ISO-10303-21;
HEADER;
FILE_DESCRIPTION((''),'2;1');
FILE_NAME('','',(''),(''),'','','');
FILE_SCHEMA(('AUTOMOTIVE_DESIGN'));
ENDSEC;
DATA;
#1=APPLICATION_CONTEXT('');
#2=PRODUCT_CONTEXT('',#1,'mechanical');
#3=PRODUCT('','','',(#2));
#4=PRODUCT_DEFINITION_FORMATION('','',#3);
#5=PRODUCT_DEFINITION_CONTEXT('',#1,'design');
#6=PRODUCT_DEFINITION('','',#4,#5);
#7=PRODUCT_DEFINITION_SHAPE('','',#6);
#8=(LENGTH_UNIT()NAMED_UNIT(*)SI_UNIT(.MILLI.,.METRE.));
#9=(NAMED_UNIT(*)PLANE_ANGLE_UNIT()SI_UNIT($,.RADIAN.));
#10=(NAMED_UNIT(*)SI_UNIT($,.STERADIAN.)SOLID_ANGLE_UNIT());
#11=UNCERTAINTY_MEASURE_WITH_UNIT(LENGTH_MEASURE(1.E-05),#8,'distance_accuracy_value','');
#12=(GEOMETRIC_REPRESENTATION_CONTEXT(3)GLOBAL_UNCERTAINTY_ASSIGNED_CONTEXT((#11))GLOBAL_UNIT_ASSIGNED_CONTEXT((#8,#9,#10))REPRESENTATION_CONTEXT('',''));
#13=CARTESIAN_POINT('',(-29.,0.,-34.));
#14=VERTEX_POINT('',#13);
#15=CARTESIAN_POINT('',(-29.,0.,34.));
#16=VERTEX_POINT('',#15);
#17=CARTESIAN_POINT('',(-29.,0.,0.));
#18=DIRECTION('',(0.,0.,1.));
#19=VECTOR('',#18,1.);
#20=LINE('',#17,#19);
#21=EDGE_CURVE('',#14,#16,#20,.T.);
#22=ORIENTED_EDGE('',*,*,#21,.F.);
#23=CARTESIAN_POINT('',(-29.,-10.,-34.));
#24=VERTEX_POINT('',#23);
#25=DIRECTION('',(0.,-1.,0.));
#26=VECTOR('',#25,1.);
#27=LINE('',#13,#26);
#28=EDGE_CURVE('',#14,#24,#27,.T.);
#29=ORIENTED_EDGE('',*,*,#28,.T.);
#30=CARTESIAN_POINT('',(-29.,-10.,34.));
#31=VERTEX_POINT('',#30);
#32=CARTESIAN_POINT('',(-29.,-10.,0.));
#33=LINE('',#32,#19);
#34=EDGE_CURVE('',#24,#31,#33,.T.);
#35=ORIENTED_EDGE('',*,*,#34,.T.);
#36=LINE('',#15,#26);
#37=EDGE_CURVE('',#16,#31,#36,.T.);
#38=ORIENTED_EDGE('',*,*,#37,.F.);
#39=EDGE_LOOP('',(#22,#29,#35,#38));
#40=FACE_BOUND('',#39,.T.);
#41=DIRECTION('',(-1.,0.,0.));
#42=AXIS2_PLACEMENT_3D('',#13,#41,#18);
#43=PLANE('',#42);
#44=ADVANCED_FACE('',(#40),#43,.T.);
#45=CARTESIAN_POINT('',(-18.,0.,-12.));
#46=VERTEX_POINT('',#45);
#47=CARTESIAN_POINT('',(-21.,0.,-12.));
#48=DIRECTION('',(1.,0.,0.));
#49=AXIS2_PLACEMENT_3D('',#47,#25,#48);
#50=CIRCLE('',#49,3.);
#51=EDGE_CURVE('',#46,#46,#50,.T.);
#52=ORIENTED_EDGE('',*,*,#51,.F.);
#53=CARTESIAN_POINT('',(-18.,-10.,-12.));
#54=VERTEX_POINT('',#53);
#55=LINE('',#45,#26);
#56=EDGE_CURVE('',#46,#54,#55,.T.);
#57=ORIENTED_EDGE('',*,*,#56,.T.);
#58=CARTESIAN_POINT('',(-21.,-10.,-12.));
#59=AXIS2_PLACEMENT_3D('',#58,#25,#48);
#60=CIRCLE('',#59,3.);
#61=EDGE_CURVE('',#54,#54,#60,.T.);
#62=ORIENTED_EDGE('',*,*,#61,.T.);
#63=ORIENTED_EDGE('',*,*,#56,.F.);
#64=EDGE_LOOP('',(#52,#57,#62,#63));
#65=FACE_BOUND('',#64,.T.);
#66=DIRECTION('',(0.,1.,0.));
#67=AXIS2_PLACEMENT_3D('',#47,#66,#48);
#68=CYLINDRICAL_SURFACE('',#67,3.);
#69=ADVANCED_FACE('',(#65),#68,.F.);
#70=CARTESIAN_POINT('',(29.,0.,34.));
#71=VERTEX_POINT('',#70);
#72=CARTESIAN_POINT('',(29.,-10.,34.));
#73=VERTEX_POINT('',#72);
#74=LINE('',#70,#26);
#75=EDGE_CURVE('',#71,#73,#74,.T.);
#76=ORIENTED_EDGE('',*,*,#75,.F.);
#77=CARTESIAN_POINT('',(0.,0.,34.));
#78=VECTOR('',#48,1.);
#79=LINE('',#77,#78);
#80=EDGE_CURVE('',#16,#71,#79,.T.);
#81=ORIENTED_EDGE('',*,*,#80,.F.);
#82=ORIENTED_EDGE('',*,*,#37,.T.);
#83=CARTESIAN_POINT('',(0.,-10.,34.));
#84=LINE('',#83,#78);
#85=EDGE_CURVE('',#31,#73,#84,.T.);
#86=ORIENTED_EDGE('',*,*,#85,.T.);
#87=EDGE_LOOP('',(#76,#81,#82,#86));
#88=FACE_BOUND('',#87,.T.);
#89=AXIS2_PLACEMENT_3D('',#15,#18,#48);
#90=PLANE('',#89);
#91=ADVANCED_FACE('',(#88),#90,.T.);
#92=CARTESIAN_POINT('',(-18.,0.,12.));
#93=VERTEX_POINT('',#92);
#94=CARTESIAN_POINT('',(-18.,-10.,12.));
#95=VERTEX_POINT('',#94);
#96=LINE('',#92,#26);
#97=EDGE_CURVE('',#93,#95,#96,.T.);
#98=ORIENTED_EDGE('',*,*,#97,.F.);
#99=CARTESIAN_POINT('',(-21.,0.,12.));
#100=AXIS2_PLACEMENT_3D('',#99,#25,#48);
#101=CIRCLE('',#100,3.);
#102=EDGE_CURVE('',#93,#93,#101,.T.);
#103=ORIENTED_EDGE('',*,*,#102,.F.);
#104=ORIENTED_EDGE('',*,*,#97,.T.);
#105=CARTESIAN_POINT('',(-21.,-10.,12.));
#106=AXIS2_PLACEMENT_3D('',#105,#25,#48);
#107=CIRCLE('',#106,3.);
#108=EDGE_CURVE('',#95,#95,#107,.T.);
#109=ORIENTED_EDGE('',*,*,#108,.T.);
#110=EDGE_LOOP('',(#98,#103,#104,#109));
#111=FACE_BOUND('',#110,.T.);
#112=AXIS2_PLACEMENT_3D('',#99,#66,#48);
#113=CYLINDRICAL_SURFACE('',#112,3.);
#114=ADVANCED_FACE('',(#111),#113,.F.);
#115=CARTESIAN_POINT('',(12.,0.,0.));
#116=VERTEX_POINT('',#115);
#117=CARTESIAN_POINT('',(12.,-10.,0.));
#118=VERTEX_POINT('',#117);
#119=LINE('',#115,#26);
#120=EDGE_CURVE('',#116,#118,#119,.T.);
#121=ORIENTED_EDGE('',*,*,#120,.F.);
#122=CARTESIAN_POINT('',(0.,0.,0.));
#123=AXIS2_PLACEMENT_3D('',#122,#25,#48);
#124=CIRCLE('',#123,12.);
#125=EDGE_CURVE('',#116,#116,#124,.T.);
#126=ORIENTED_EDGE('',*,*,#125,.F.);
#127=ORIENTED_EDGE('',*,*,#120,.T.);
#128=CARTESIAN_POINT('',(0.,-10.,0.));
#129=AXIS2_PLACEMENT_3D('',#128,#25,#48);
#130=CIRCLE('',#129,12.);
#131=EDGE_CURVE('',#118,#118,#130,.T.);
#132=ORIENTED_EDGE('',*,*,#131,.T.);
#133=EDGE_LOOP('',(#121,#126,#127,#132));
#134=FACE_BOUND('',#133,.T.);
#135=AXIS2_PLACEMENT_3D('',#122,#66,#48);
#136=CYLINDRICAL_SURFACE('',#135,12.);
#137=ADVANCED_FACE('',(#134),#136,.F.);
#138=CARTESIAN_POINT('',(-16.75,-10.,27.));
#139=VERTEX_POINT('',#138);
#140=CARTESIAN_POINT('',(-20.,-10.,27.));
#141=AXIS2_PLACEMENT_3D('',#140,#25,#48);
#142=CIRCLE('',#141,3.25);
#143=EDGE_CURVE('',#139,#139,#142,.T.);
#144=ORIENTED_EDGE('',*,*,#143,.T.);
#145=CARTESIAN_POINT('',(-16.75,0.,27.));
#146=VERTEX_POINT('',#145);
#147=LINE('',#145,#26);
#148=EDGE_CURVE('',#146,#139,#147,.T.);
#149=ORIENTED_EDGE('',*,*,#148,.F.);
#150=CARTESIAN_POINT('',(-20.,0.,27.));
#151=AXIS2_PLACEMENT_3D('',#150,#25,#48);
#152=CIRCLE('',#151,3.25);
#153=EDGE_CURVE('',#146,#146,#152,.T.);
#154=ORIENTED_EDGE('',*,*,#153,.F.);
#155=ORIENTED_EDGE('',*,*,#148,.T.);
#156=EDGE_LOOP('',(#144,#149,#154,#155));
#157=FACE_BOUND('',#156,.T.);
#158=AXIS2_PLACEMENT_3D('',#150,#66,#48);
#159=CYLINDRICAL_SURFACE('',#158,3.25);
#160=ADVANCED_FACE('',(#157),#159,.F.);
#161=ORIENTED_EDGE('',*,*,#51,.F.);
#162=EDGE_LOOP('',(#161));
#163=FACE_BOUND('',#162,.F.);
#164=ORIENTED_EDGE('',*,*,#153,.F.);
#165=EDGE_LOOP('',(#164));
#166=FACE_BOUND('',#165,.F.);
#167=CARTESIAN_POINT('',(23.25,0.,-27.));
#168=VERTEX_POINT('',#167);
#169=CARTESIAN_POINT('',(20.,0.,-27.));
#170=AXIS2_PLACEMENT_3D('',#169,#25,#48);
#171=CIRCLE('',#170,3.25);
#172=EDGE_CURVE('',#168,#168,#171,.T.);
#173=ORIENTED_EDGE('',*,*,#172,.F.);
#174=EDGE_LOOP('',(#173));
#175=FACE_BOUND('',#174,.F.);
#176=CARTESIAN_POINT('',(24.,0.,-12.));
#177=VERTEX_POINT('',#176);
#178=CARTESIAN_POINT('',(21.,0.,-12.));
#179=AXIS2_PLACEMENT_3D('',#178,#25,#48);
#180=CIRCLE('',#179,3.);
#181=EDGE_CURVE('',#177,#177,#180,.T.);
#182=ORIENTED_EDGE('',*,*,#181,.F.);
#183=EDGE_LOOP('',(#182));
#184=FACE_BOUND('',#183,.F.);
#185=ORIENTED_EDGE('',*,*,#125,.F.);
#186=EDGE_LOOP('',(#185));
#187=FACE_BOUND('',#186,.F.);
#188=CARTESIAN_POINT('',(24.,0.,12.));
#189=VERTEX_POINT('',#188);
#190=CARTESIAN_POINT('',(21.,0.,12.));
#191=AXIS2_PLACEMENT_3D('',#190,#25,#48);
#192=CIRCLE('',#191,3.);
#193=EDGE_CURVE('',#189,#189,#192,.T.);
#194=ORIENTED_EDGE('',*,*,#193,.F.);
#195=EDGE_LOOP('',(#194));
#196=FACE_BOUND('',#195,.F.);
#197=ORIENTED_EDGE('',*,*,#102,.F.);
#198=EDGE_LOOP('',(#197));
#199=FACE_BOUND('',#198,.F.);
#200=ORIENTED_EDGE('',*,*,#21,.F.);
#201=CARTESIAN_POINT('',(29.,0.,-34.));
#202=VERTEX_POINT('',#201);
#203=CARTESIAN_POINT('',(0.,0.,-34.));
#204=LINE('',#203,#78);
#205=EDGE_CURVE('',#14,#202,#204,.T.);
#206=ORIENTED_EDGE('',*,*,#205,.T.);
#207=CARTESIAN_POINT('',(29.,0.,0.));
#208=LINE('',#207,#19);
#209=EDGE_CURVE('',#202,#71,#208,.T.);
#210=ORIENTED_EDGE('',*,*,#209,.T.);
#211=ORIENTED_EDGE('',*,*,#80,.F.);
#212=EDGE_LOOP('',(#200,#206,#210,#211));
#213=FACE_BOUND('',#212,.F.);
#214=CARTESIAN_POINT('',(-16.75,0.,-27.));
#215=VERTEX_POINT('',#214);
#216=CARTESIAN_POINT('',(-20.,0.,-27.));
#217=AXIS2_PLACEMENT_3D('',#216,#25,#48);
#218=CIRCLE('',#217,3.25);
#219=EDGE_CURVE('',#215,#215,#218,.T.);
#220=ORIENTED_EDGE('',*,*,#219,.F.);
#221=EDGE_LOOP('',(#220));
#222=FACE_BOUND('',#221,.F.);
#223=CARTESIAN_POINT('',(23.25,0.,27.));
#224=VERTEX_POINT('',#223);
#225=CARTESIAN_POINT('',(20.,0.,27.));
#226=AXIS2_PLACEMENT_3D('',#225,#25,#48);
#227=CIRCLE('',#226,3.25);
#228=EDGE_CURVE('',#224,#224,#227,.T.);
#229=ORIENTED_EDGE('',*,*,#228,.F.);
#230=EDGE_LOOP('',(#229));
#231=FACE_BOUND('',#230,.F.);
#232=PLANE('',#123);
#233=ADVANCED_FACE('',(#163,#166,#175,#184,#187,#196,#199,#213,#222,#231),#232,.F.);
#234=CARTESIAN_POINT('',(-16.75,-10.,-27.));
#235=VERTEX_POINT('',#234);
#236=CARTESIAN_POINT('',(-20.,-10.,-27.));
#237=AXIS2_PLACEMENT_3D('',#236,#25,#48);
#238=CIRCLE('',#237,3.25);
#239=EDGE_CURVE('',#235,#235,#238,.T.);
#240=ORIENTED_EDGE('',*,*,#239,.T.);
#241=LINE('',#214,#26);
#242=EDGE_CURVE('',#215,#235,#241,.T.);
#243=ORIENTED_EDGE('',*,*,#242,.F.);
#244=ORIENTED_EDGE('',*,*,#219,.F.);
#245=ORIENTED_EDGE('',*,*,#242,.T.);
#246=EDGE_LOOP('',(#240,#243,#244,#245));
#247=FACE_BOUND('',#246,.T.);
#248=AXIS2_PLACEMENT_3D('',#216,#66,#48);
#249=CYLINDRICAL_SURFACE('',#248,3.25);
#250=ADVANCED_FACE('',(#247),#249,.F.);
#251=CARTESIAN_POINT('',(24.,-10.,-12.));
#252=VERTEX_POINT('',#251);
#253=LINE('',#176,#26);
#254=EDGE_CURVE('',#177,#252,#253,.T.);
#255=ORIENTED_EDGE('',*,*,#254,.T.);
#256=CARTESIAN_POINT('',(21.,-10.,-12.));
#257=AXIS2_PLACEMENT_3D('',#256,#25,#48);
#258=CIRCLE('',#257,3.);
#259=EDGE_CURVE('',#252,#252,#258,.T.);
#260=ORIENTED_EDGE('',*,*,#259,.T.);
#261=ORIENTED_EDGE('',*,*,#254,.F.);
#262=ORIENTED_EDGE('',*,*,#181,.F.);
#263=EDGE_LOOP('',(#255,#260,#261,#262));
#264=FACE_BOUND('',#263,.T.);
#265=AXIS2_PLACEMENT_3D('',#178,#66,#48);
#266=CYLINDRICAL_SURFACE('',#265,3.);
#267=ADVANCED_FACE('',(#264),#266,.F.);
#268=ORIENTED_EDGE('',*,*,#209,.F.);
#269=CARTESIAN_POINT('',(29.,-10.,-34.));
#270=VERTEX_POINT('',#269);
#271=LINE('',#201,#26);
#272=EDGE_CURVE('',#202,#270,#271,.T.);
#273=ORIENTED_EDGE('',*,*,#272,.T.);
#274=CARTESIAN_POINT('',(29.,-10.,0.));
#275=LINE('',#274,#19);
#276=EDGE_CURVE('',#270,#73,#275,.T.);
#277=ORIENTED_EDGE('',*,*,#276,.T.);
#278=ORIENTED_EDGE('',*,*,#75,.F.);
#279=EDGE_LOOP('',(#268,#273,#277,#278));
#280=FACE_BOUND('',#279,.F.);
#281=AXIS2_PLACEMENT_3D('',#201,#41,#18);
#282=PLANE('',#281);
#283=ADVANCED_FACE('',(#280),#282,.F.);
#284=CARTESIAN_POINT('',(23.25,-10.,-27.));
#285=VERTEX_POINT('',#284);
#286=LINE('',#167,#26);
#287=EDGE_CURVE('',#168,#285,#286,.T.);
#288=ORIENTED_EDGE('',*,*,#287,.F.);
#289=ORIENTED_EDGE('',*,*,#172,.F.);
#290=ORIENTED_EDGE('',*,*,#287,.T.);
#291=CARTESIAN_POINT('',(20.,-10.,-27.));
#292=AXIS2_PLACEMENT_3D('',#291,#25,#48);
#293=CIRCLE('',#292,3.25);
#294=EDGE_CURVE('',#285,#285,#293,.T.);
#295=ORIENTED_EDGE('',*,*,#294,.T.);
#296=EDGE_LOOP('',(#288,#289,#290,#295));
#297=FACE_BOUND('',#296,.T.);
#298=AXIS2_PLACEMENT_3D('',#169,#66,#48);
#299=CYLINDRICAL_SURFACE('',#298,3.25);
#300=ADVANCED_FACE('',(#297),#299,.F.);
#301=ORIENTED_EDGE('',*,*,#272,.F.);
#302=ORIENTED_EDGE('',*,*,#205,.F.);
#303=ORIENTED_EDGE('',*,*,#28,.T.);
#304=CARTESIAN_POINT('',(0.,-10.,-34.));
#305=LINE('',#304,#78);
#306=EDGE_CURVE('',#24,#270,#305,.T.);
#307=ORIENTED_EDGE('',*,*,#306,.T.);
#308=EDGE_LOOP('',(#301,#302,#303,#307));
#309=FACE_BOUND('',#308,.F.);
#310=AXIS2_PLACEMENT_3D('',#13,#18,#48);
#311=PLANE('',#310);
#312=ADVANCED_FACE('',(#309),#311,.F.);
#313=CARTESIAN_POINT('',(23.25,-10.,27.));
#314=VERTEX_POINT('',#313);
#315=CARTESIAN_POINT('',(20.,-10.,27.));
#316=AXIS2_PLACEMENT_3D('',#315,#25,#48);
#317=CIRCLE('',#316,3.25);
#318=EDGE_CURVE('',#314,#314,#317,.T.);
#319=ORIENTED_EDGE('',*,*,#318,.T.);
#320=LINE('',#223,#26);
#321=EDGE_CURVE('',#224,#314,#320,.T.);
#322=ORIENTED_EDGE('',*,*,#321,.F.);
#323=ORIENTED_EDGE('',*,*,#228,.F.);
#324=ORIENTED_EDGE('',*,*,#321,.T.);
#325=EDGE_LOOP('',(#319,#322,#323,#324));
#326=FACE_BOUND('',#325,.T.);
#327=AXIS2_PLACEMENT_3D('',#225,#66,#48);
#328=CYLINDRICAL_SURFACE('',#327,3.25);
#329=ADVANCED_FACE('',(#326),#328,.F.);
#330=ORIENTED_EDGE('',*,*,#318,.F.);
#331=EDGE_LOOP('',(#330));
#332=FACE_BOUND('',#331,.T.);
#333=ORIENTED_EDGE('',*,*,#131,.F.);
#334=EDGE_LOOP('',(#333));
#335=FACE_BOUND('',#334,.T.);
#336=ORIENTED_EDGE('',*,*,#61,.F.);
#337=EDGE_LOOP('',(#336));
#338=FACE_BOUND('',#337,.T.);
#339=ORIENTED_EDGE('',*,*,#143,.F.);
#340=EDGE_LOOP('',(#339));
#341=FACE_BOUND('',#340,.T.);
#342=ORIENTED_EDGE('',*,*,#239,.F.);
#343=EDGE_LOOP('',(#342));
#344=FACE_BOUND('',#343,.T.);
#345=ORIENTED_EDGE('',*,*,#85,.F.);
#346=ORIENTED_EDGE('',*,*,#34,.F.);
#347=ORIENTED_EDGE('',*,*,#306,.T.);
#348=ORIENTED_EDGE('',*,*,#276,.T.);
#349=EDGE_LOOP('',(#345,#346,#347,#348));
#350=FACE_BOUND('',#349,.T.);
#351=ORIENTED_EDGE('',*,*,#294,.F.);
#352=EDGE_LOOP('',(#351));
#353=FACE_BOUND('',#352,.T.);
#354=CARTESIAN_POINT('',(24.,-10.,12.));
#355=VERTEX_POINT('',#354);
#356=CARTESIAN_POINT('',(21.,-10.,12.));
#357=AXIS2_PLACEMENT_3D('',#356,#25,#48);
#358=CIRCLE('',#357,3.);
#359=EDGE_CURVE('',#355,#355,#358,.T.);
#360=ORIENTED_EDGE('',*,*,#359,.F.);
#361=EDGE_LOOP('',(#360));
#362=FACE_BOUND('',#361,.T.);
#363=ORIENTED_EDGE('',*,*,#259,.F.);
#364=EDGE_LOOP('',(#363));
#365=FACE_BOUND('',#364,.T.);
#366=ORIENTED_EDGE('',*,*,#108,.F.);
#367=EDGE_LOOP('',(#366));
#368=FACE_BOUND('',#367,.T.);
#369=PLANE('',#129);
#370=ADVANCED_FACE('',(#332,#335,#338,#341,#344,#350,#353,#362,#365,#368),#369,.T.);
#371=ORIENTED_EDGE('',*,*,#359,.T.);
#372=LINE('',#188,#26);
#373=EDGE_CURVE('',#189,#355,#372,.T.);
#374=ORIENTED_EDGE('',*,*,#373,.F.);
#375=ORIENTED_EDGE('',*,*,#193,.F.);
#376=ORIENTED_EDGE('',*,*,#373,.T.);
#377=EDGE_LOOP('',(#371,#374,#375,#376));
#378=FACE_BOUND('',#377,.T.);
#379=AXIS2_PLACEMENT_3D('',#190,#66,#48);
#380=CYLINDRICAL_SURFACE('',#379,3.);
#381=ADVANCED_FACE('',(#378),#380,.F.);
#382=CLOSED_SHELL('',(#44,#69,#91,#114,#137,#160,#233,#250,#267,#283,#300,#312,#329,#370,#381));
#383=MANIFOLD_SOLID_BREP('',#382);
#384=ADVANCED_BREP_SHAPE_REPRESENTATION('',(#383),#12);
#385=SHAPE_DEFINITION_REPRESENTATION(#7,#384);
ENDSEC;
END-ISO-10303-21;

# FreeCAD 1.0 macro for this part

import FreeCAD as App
import Part
import Sketcher
Q = App.Units.Quantity


def add_polygon(sketch, points):
    """Adds a closed chain of lines whose ends are joined by coincident constraints."""
    first, n = sketch.GeometryCount, len(points)
    for a, b in zip(points, points[1:] + points[:1]):
        sketch.addGeometry(Part.LineSegment(App.Vector(*a, 0), App.Vector(*b, 0)), False)
    for i in range(n):
        sketch.addConstraint(Sketcher.Constraint("Coincident", first + i, 2, first + (i + 1) % n, 1))

doc = App.newDocument("Part")
params = doc.addObject("Spreadsheet::Sheet", "Params")
for row, (alias, value) in enumerate([
    ("sketch1_diameter", "6 mm"),
    ("sketch1_diameter2", "24 mm"),
    ("sketch1_diameter3", "6.5 mm"),
    ("sketch1_width", "58 mm"),
    ("sketch1_height", "68 mm"),
    ("pad1_length", "10 mm"),
], start=1):
    params.set(f"A{row}", alias)
    params.set(f"B{row}", "=" + value)
    params.setAlias(f"B{row}", alias)

body = doc.addObject("PartDesign::Body", "Body")

sketch1 = body.newObject("Sketcher::SketchObject", "Sketch")
sketch1.AttachmentSupport = (doc.getObject("XZ_Plane"), [""])
sketch1.MapMode = "FlatFace"
add_polygon(sketch1, [(-29, 34), (-29, -34), (29, -34), (29, 34)])
sketch1.addGeometry(Part.Circle(App.Vector(-20, -27, 0), App.Vector(0, 0, 1), 3.2), False)
sketch1.addGeometry(Part.Circle(App.Vector(-21, -12, 0), App.Vector(0, 0, 1), 3), False)
sketch1.addGeometry(Part.Circle(App.Vector(20, -27, 0), App.Vector(0, 0, 1), 3.2), False)
sketch1.addGeometry(Part.Circle(App.Vector(21, -12, 0), App.Vector(0, 0, 1), 3), False)
sketch1.addGeometry(Part.Circle(App.Vector(-21, 12, 0), App.Vector(0, 0, 1), 3), False)
sketch1.addGeometry(Part.Circle(App.Vector(-20, 27, 0), App.Vector(0, 0, 1), 3.2), False)
sketch1.addGeometry(Part.Circle(App.Vector(0, 0, 0), App.Vector(0, 0, 1), 12), False)
sketch1.addGeometry(Part.Circle(App.Vector(21, 12, 0), App.Vector(0, 0, 1), 3), False)
sketch1.addGeometry(Part.Circle(App.Vector(20, 27, 0), App.Vector(0, 0, 1), 3.2), False)
sketch1.addConstraint([
    Sketcher.Constraint("Vertical", 0),
    Sketcher.Constraint("Horizontal", 1),
    Sketcher.Constraint("Vertical", 2),
    Sketcher.Constraint("Horizontal", 3),
    Sketcher.Constraint("Coincident", 10, 3, -1, 1),
    Sketcher.Constraint("Equal", 4, 6),
    Sketcher.Constraint("Equal", 5, 7),
    Sketcher.Constraint("Equal", 7, 8),
    Sketcher.Constraint("Equal", 6, 9),
    Sketcher.Constraint("Equal", 8, 11),
    Sketcher.Constraint("Equal", 9, 12),
    Sketcher.Constraint("Symmetric", 7, 3, 8, 3, -1, 1),
    Sketcher.Constraint("Symmetric", 6, 3, 9, 3, -1, 1),
    Sketcher.Constraint("Symmetric", 5, 3, 11, 3, -1, 1),
    Sketcher.Constraint("Symmetric", 4, 3, 12, 3, -1, 1),
    Sketcher.Constraint("Symmetric", 0, 2, 2, 2, -1, 1),
    Sketcher.Constraint("Symmetric", 4, 3, 6, 3, -2),
    Sketcher.Constraint("Symmetric", 5, 3, 7, 3, -2),
    Sketcher.Constraint("Diameter", 5, Q("6 mm")),
    Sketcher.Constraint("Diameter", 10, Q("24 mm")),
    Sketcher.Constraint("Diameter", 4, Q("6.5 mm")),
    Sketcher.Constraint("DistanceX", 1, 1, 1, 2, Q("58 mm")),
    Sketcher.Constraint("DistanceY", 0, 2, 0, 1, Q("68 mm")),
    Sketcher.Constraint("DistanceX", 4, 3, -1, 1, Q("20 mm")),
    Sketcher.Constraint("DistanceY", 4, 3, -1, 1, Q("27 mm")),
    Sketcher.Constraint("DistanceX", 5, 3, -1, 1, Q("21 mm")),
    Sketcher.Constraint("DistanceY", 5, 3, -1, 1, Q("12 mm")),
])
sketch1.setExpression("Constraints[22]", "Params.sketch1_diameter")
sketch1.setExpression("Constraints[23]", "Params.sketch1_diameter2")
sketch1.setExpression("Constraints[24]", "Params.sketch1_diameter3")
sketch1.setExpression("Constraints[25]", "Params.sketch1_width")
sketch1.setExpression("Constraints[26]", "Params.sketch1_height")
pad1 = body.newObject("PartDesign::Pad", "Pad")
pad1.Profile = sketch1
pad1.setExpression("Length", "Params.pad1_length")

doc.recompute()
